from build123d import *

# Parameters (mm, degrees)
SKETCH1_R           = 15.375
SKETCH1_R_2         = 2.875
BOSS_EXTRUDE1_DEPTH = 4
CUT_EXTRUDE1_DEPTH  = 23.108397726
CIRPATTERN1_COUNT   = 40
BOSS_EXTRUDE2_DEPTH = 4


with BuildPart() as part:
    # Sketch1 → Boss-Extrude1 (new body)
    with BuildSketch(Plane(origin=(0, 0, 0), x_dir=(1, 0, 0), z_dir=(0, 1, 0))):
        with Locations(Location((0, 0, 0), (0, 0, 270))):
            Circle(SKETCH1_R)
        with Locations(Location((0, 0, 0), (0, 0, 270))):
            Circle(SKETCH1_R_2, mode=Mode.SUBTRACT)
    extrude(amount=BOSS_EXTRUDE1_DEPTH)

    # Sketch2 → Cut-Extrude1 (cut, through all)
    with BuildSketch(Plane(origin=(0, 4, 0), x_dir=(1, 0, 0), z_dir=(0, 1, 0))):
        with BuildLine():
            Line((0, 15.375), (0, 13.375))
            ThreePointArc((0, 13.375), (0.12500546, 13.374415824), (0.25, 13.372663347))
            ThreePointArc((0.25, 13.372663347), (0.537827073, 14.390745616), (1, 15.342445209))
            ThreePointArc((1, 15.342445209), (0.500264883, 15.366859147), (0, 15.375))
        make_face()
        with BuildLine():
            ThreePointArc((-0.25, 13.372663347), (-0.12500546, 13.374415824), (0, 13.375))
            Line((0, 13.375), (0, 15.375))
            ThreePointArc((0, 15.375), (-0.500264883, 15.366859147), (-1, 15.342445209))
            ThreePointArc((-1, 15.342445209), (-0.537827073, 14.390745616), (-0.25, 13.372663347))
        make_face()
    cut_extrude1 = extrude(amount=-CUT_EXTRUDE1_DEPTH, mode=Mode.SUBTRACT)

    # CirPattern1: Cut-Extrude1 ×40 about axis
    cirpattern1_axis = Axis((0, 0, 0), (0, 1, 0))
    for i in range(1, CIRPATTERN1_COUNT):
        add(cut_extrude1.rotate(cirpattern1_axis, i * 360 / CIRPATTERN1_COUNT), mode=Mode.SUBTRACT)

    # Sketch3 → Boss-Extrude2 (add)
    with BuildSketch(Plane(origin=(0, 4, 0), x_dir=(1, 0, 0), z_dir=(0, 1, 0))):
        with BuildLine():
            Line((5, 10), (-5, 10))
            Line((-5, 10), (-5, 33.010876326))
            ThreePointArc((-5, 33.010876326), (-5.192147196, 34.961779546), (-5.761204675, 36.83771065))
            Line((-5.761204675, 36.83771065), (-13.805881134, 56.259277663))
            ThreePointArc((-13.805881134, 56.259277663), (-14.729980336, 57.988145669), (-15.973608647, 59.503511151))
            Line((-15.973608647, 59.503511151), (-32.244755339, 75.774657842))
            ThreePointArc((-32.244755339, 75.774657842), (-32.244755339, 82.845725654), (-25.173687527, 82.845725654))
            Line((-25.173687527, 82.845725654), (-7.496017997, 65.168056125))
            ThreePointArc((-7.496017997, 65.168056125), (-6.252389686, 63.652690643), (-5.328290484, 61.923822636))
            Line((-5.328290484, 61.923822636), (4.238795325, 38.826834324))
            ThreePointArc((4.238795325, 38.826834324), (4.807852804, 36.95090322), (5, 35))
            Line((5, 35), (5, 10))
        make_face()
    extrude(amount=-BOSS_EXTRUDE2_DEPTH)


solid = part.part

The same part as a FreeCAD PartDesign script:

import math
import FreeCAD as App
import Part
import Sketcher
from FreeCAD import Vector
Q = App.Units.Quantity

doc = App.newDocument("Part")
body = doc.addObject("PartDesign::Body", "Body")

# Sketch on XZ plane
sketch1 = body.newObject("Sketcher::SketchObject", "Sketch")
sketch1.AttachmentSupport = (doc.getObject("XZ_Plane"), [""])
sketch1.MapMode = "FlatFace"
sketch1.addGeometry(Part.Circle(Vector(0, 0, 0), Vector(0, 0, 1), 15.4), False)
sketch1.addGeometry(Part.Circle(Vector(0, 0, 0), Vector(0, 0, 1), 2.9), False)
sketch1.addConstraint(Sketcher.Constraint("Coincident", 0, 3, -1, 1))
sketch1.addConstraint(Sketcher.Constraint("Coincident", 1, 3, -1, 1))
sketch1.addConstraint(Sketcher.Constraint("Diameter", 0, Q("30.75 mm")))
sketch1.addConstraint(Sketcher.Constraint("Diameter", 1, Q("5.75 mm")))
pad1 = body.newObject("PartDesign::Pad", "Pad")
pad1.Profile = sketch1
pad1.Length = 4
pad1.Reversed = True

# Sketch on XZ plane
sketch2 = body.newObject("Sketcher::SketchObject", "Sketch001")
sketch2.AttachmentSupport = (doc.getObject("XZ_Plane"), [""])
sketch2.MapMode = "FlatFace"
sketch2.AttachmentOffset = App.Placement(Vector(0, 0, -4), App.Rotation())
sketch2.addGeometry(Part.ArcOfCircle(Part.Circle(Vector(0, 0, 0), Vector(0, 0, 1), 13.37), math.radians(-90), math.radians(-88.93)), False)
sketch2.addGeometry(Part.ArcOfCircle(Part.Circle(Vector(6.15, -12.26, 0), Vector(0, 0, 1), 6), math.radians(-169), math.radians(-149)), False)
sketch2.addGeometry(Part.ArcOfCircle(Part.Circle(Vector(0, 0, 0), Vector(0, 0, 1), 15.37), math.radians(-90), math.radians(-86.27)), False)
sketch2.addGeometry(Part.ArcOfCircle(Part.Circle(Vector(0, 0, 0), Vector(0, 0, 1), 15.37), math.radians(-93.73), math.radians(-90)), False)
sketch2.addGeometry(Part.ArcOfCircle(Part.Circle(Vector(-6.15, -12.26, 0), Vector(0, 0, 1), 6), math.radians(-31), math.radians(-11)), False)
sketch2.addGeometry(Part.ArcOfCircle(Part.Circle(Vector(0, 0, 0), Vector(0, 0, 1), 13.37), math.radians(-91.07), math.radians(-90)), False)
sketch2.addConstraint(Sketcher.Constraint("Coincident", 0, 2, 1, 1))
sketch2.addConstraint(Sketcher.Constraint("Coincident", 1, 2, 2, 2))
sketch2.addConstraint(Sketcher.Constraint("Tangent", 2, 1, 3, 2))
sketch2.addConstraint(Sketcher.Constraint("Coincident", 3, 1, 4, 1))
sketch2.addConstraint(Sketcher.Constraint("Coincident", 4, 2, 5, 1))
sketch2.addConstraint(Sketcher.Constraint("Tangent", 5, 2, 0, 1))
sketch2.addConstraint(Sketcher.Constraint("Coincident", 0, 3, -1, 1))
sketch2.addConstraint(Sketcher.Constraint("Coincident", 2, 3, -1, 1))
sketch2.addConstraint(Sketcher.Constraint("Equal", 2, 3))
sketch2.addConstraint(Sketcher.Constraint("Equal", 1, 4))
sketch2.addConstraint(Sketcher.Constraint("Equal", 0, 5))
sketch2.addConstraint(Sketcher.Constraint("Symmetric", 1, 3, 4, 3, -2))
sketch2.addConstraint(Sketcher.Constraint("PointOnObject", 2, 1, -2))
sketch2.addConstraint(Sketcher.Constraint("PointOnObject", 5, 2, -2))
sketch2.addConstraint(Sketcher.Constraint("Radius", 1, Q("6 mm")))
sketch2.addConstraint(Sketcher.Constraint("DistanceX", -1, 1, 1, 2, Q("1 mm")))
sketch2.addConstraint(Sketcher.Constraint("Radius", 0, Q("13.374998 mm")))
sketch2.addConstraint(Sketcher.Constraint("Radius", 2, Q("15.375 mm")))
sketch2.addConstraint(Sketcher.Constraint("DistanceX", 4, 2, 0, 2, Q("0.5 mm")))
pocket1 = body.newObject("PartDesign::Pocket", "Pocket")
pocket1.Profile = sketch2
pocket1.Type = "ThroughAll"
pocket1.Reversed = True
doc.recompute()

polarpattern = body.newObject("PartDesign::PolarPattern", "PolarPattern")
polarpattern.Originals = [pocket1]
polarpattern.Axis = (doc.getObject("Y_Axis"), [""])
polarpattern.Angle = 360
polarpattern.Occurrences = 40
body.Tip = polarpattern

# Sketch on XZ plane
sketch3 = body.newObject("Sketcher::SketchObject", "Sketch002")
sketch3.AttachmentSupport = (doc.getObject("XZ_Plane"), [""])
sketch3.MapMode = "FlatFace"
sketch3.AttachmentOffset = App.Placement(Vector(0, 0, -4), App.Rotation())
sketch3.addGeometry(Part.LineSegment(Vector(-5, -10, 0), Vector(5, -10, 0)), False)
sketch3.addGeometry(Part.LineSegment(Vector(5, -10, 0), Vector(5, -35, 0)), False)
sketch3.addGeometry(Part.ArcOfCircle(Part.Circle(Vector(-5, -35, 0), Vector(0, 0, 1), 10), math.radians(-22), math.radians(0)), False)
sketch3.addGeometry(Part.LineSegment(Vector(4.2, -38.8, 0), Vector(-5.3, -61.9, 0)), False)
sketch3.addGeometry(Part.ArcOfCircle(Part.Circle(Vector(-14.6, -58.1, 0), Vector(0, 0, 1), 10), math.radians(-45), math.radians(-22)), False)
sketch3.addGeometry(Part.LineSegment(Vector(-7.5, -65.2, 0), Vector(-25.2, -82.8, 0)), False)
sketch3.addGeometry(Part.ArcOfCircle(Part.Circle(Vector(-28.7, -79.3, 0), Vector(0, 0, 1), 5), math.radians(135), math.radians(315)), False)
sketch3.addGeometry(Part.LineSegment(Vector(-32.2, -75.8, 0), Vector(-16, -59.5, 0)), False)
sketch3.addGeometry(Part.ArcOfCircle(Part.Circle(Vector(-23, -52.4, 0), Vector(0, 0, 1), 10), math.radians(-45), math.radians(-23)), False)
sketch3.addGeometry(Part.LineSegment(Vector(-13.8, -56.3, 0), Vector(-5.8, -36.8, 0)), False)
sketch3.addGeometry(Part.ArcOfCircle(Part.Circle(Vector(-15, -33, 0), Vector(0, 0, 1), 10), math.radians(-22), math.radians(0)), False)
sketch3.addGeometry(Part.LineSegment(Vector(-5, -33, 0), Vector(-5, -10, 0)), False)
sketch3.addConstraint(Sketcher.Constraint("Coincident", 0, 2, 1, 1))
sketch3.addConstraint(Sketcher.Constraint("Tangent", 1, 2, 2, 2))
sketch3.addConstraint(Sketcher.Constraint("Tangent", 2, 1, 3, 1))
sketch3.addConstraint(Sketcher.Constraint("Tangent", 3, 2, 4, 2))
sketch3.addConstraint(Sketcher.Constraint("Tangent", 4, 1, 5, 1))
sketch3.addConstraint(Sketcher.Constraint("Tangent", 5, 2, 6, 2))
sketch3.addConstraint(Sketcher.Constraint("Tangent", 6, 1, 7, 1))
sketch3.addConstraint(Sketcher.Constraint("Tangent", 7, 2, 8, 1))
sketch3.addConstraint(Sketcher.Constraint("Tangent", 8, 2, 9, 1))
sketch3.addConstraint(Sketcher.Constraint("Tangent", 9, 2, 10, 1))
sketch3.addConstraint(Sketcher.Constraint("Tangent", 10, 2, 11, 1))
sketch3.addConstraint(Sketcher.Constraint("Coincident", 11, 2, 0, 1))
sketch3.addConstraint(Sketcher.Constraint("Horizontal", 0))
sketch3.addConstraint(Sketcher.Constraint("Vertical", 1))
sketch3.addConstraint(Sketcher.Constraint("Vertical", 11))
sketch3.addConstraint(Sketcher.Constraint("Equal", 2, 4))
sketch3.addConstraint(Sketcher.Constraint("Equal", 4, 8))
sketch3.addConstraint(Sketcher.Constraint("Equal", 8, 10))
sketch3.addConstraint(Sketcher.Constraint("Parallel", 5, 7))
sketch3.addConstraint(Sketcher.Constraint("Parallel", 3, 9))
sketch3.addConstraint(Sketcher.Constraint("Vertical", 2, 3, 10, 2))
sketch3.addConstraint(Sketcher.Constraint("Equal", 3, 5))
sketch3.addConstraint(Sketcher.Constraint("Radius", 2, Q("10 mm")))
sketch3.addConstraint(Sketcher.Constraint("Radius", 6, Q("5 mm")))
sketch3.addConstraint(Sketcher.Constraint("DistanceY", 1, 2, 1, 1, Q("25 mm")))
sketch3.addConstraint(Sketcher.Constraint("Angle", 5, Q("-135 deg")))
sketch3.addConstraint(Sketcher.Constraint("Distance", 3, Q("25 mm")))
sketch3.addConstraint(Sketcher.Constraint("DistanceX", 2, 3, -1, 1, Q("5 mm")))
sketch3.addConstraint(Sketcher.Constraint("DistanceY", 2, 3, -1, 1, Q("35 mm")))
sketch3.addConstraint(Sketcher.Constraint("Angle", 3, Q("-112.5 deg")))
sketch3.addConstraint(Sketcher.Constraint("DistanceY", 11, 1, 11, 2, Q("23.010876 mm")))
pad2 = body.newObject("PartDesign::Pad", "Pad001")
pad2.Profile = sketch3
pad2.Length = 4

doc.recompute()
